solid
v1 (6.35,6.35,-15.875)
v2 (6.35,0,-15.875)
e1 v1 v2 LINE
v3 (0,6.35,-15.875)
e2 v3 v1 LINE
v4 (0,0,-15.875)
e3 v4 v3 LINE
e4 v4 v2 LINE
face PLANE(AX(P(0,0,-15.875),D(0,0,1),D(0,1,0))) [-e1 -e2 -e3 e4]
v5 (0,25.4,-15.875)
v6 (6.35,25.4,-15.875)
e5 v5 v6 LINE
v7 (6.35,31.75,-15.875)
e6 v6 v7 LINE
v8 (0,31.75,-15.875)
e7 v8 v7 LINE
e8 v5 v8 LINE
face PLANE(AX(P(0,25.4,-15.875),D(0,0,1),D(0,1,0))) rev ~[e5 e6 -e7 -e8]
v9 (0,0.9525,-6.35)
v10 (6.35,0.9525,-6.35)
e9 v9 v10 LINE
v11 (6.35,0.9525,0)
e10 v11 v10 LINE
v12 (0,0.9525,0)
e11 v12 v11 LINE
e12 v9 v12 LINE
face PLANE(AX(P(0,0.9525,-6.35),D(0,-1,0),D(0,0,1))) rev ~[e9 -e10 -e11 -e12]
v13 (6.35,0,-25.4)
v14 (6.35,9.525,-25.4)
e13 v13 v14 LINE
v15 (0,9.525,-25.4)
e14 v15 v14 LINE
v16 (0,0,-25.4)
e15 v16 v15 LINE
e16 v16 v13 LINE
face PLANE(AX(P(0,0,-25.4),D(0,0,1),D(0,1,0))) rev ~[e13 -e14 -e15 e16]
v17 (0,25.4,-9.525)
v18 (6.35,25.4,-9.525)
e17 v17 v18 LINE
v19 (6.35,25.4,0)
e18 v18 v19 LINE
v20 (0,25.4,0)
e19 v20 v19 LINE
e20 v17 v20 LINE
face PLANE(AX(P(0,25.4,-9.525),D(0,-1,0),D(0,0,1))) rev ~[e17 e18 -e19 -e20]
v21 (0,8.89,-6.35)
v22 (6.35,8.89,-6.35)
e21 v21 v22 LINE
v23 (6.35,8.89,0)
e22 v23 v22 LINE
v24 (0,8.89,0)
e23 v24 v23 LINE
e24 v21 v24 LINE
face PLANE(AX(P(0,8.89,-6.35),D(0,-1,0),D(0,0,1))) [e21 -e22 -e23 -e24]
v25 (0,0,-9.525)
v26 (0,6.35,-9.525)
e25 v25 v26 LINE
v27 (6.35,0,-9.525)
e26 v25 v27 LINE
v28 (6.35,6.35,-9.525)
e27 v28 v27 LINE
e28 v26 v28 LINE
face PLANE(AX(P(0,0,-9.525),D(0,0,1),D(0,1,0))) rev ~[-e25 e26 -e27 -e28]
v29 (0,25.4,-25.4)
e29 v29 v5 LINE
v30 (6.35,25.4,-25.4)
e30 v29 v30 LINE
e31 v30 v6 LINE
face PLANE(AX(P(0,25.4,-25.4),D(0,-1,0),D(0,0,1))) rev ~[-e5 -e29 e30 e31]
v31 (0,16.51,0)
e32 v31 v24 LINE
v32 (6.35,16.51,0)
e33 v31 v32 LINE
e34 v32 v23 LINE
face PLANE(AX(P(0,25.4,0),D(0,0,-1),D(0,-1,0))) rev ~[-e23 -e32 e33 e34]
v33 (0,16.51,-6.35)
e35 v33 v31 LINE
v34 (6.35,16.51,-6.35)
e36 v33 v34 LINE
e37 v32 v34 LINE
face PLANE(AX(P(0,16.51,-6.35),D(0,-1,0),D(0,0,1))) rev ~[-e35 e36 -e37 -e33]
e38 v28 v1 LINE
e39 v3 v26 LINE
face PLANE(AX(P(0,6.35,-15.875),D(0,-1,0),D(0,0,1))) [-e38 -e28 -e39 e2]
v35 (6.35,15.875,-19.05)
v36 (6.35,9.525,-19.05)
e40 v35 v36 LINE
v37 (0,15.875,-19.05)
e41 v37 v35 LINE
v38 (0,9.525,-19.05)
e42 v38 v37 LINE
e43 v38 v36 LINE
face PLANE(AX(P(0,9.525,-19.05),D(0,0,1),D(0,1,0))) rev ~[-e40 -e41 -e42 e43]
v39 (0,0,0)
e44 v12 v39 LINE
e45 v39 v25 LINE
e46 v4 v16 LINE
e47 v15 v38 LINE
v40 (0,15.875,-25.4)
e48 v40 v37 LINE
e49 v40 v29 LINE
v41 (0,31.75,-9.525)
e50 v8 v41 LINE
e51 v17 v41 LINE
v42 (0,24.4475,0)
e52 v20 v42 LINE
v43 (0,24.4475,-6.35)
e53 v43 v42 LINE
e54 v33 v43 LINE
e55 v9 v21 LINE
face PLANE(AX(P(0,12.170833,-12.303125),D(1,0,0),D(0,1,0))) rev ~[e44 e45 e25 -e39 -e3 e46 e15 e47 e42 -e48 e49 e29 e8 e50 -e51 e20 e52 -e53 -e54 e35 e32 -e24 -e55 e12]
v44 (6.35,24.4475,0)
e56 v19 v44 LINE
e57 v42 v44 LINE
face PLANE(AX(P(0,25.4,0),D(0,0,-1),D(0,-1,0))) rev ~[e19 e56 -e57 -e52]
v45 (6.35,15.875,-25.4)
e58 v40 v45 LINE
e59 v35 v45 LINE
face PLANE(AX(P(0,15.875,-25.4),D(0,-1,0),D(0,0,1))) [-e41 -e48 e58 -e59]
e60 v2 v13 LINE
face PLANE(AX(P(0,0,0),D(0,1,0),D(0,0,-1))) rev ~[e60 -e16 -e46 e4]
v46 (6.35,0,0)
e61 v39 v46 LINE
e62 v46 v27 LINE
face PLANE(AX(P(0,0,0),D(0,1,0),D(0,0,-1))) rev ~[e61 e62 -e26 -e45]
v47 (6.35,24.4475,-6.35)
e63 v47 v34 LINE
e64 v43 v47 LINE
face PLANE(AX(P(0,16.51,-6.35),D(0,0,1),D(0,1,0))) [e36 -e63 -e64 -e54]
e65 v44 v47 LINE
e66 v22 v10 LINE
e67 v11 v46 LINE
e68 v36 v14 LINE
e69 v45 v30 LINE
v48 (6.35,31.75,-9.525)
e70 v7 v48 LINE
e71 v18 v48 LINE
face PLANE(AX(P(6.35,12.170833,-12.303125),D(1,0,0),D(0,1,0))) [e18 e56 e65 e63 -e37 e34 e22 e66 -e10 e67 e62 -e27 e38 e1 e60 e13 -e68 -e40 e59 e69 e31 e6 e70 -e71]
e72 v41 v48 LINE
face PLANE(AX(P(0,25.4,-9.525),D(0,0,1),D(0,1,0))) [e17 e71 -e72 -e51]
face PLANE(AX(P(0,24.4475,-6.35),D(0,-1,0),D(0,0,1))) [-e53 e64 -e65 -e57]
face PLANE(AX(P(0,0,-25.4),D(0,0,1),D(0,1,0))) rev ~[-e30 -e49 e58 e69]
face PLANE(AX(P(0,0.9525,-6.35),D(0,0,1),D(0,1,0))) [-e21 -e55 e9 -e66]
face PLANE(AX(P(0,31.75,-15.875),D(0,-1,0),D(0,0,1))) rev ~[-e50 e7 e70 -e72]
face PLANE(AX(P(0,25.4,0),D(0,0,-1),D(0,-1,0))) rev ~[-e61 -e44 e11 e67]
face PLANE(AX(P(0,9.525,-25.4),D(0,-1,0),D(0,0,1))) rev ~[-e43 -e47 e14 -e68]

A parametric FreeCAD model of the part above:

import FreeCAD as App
import Part
import Sketcher
Q = App.Units.Quantity


def add_polygon(sketch, points):
    """Adds a closed chain of lines whose ends are joined by coincident constraints."""
    first, n = sketch.GeometryCount, len(points)
    for a, b in zip(points, points[1:] + points[:1]):
        sketch.addGeometry(Part.LineSegment(App.Vector(*a, 0), App.Vector(*b, 0)), False)
    for i in range(n):
        sketch.addConstraint(Sketcher.Constraint("Coincident", first + i, 2, first + (i + 1) % n, 1))

doc = App.newDocument("Part")
body = doc.addObject("PartDesign::Body", "Body")

# Sketch on YZ plane
sketch1 = doc.addObject("Sketcher::SketchObject", "Sketch")
body.addObject(sketch1)
sketch1.AttachmentSupport = (doc.YZ_Plane, [""])
sketch1.MapMode = "FlatFace"
add_polygon(sketch1, [(0, 0), (0, -25), (25, -25), (25, -16), (32, -16), (32, -10), (25, -10), (25, 0)])  # lines 0-7
sketch1.addConstraint([
    Sketcher.Constraint("Vertical", 0),
    Sketcher.Constraint("Horizontal", 1),
    Sketcher.Constraint("Vertical", 2),
    Sketcher.Constraint("Horizontal", 3),
    Sketcher.Constraint("Vertical", 4),
    Sketcher.Constraint("Horizontal", 5),
    Sketcher.Constraint("Vertical", 6),
    Sketcher.Constraint("Horizontal", 7),
    Sketcher.Constraint("Coincident", 7, 2, -1, 1),
    Sketcher.Constraint("Vertical", 2, 2, 5, 2),
    Sketcher.Constraint("Equal", 7, 0),
    Sketcher.Constraint("Equal", 5, 4),
    Sketcher.Constraint("Equal", 2, 6),
    Sketcher.Constraint("DistanceX", 1, 1, 1, 2, Q("1 in")),
    Sketcher.Constraint("DistanceX", 3, 1, 3, 2, Q("0.25 in")),
])
pad1 = doc.addObject("PartDesign::Pad", "Pad")
body.addObject(pad1)
pad1.Profile = sketch1
pad1.Length = Q("0.25 in")

# Sketch on YZ plane
sketch2 = doc.addObject("Sketcher::SketchObject", "Sketch001")
body.addObject(sketch2)
sketch2.AttachmentSupport = (doc.YZ_Plane, [""])
sketch2.MapMode = "FlatFace"
add_polygon(sketch2, [(1, 0), (1, -6), (9, -6), (9, 0)])  # lines 0-3
add_polygon(sketch2, [(17, 0), (17, -6), (24, -6), (24, 0)])  # lines 4-7
add_polygon(sketch2, [(10, -19), (10, -25), (16, -25), (16, -19)])  # lines 8-11
add_polygon(sketch2, [(0, -10), (0, -16), (6, -16), (6, -10)])  # lines 12-15
sketch2.addConstraint([
    Sketcher.Constraint("Vertical", 0),
    Sketcher.Constraint("Horizontal", 1),
    Sketcher.Constraint("Vertical", 2),
    Sketcher.Constraint("Horizontal", 3),
    Sketcher.Constraint("Vertical", 4),
    Sketcher.Constraint("Horizontal", 5),
    Sketcher.Constraint("Vertical", 6),
    Sketcher.Constraint("Horizontal", 7),
    Sketcher.Constraint("Vertical", 8),
    Sketcher.Constraint("Horizontal", 9),
    Sketcher.Constraint("Vertical", 10),
    Sketcher.Constraint("Horizontal", 11),
    Sketcher.Constraint("Vertical", 12),
    Sketcher.Constraint("Horizontal", 13),
    Sketcher.Constraint("Vertical", 14),
    Sketcher.Constraint("Horizontal", 15),
    Sketcher.Constraint("PointOnObject", 2, 2, -1),
    Sketcher.Constraint("PointOnObject", 6, 2, -1),
    Sketcher.Constraint("PointOnObject", 12, 2, -2),
    Sketcher.Constraint("Horizontal", 1, 2, 4, 2),
    Sketcher.Constraint("Equal", 3, 5),
    Sketcher.Constraint("Equal", 11, 13),
    Sketcher.Constraint("Equal", 15, 0),
    Sketcher.Constraint("Equal", 6, 8),
    Sketcher.Constraint("Equal", 10, 12),
    Sketcher.Constraint("DistanceY", 8, 2, -1, 1, Q("1 in")),
    Sketcher.Constraint("DistanceX", 9, 1, 9, 2, Q("0.25 in")),
    Sketcher.Constraint("DistanceX", 1, 2, 4, 2, Q("0.3 in")),
    Sketcher.Constraint("DistanceX", 13, 2, 1, 2, Q("0.1 in")),
    Sketcher.Constraint("DistanceX", 1, 1, 1, 2, Q("0.3125 in")),
    Sketcher.Constraint("DistanceX", -1, 1, 8, 2, Q("0.375 in")),
    Sketcher.Constraint("DistanceY", 12, 2, -1, 1, Q("0.625 in")),
])
pocket1 = doc.addObject("PartDesign::Pocket", "Pocket")
body.addObject(pocket1)
pocket1.Profile = sketch2
pocket1.Length = Q("1 in")
pocket1.Reversed = True

doc.recompute()
